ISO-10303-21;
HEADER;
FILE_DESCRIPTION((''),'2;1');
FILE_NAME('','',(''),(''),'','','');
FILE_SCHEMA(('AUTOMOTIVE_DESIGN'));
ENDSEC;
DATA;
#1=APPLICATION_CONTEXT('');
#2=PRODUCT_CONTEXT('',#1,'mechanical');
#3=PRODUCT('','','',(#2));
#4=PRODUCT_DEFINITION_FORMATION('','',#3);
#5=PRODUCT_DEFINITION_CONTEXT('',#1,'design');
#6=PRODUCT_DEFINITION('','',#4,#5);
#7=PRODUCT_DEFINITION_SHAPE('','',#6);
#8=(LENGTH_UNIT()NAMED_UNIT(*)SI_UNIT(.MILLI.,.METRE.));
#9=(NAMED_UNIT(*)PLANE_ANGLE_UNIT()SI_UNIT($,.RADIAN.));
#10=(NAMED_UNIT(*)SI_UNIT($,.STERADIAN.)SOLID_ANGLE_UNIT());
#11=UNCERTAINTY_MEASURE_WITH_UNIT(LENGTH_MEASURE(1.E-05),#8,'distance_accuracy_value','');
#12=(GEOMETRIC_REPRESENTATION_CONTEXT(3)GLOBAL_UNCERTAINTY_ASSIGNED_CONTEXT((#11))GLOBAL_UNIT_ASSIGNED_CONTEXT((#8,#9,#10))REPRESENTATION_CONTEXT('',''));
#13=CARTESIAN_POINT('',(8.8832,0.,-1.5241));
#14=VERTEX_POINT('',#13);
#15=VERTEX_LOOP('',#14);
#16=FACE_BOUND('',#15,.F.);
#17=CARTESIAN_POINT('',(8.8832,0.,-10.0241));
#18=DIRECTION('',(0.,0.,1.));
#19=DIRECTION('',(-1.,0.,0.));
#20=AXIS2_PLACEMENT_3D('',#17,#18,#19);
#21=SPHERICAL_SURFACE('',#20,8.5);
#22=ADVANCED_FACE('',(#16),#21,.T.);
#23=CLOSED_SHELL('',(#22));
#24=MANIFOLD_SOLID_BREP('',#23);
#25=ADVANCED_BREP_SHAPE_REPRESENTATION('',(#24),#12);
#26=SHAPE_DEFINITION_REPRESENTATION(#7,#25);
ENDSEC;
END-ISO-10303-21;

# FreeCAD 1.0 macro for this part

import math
import FreeCAD as App
import Part
import Sketcher
from FreeCAD import Vector
Q = App.Units.Quantity

doc = App.newDocument("Part")
body = doc.addObject("PartDesign::Body", "Body")

# Sketch on XZ plane
sketch1 = doc.addObject("Sketcher::SketchObject", "Sketch")
body.addObject(sketch1)
sketch1.AttachmentSupport = (doc.XZ_Plane, [""])
sketch1.MapMode = "FlatFace"
sketch1.addGeometry([
    Part.LineSegment(Vector(9, -2, 0), Vector(9, -19, 0)),
    Part.ArcOfCircle(Part.Circle(Vector(9, -10, 0), Vector(0, 0, 1), 8), math.radians(90), math.radians(270)),
], False)
sketch1.addGeometry(Part.LineSegment(Vector(9, -2, 0), Vector(9, -19, 0)), True)  # axis
sketch1.addConstraint([
    Sketcher.Constraint("Coincident", 0, 1, 1, 1),
    Sketcher.Constraint("Coincident", 1, 2, 0, 2),
    Sketcher.Constraint("Vertical", 0),
    Sketcher.Constraint("Vertical", 2),
    Sketcher.Constraint("Coincident", 2, 1, 0, 1),
    Sketcher.Constraint("Vertical", 1, 3, 0, 1),
    Sketcher.Constraint("Equal", 0, 2),
    Sketcher.Constraint("Radius", 1, Q("8.5 mm")),
    Sketcher.Constraint("DistanceY", 1, 3, -1, 1, Q("10.024 mm")),
    Sketcher.Constraint("DistanceX", -1, 1, 1, 3, Q("8.8832 mm")),
])
revolution = doc.addObject("PartDesign::Revolution", "Revolution")
body.addObject(revolution)
revolution.Profile = sketch1
revolution.ReferenceAxis = (sketch1, ["Axis0"])
revolution.Angle = 360

doc.recompute()
